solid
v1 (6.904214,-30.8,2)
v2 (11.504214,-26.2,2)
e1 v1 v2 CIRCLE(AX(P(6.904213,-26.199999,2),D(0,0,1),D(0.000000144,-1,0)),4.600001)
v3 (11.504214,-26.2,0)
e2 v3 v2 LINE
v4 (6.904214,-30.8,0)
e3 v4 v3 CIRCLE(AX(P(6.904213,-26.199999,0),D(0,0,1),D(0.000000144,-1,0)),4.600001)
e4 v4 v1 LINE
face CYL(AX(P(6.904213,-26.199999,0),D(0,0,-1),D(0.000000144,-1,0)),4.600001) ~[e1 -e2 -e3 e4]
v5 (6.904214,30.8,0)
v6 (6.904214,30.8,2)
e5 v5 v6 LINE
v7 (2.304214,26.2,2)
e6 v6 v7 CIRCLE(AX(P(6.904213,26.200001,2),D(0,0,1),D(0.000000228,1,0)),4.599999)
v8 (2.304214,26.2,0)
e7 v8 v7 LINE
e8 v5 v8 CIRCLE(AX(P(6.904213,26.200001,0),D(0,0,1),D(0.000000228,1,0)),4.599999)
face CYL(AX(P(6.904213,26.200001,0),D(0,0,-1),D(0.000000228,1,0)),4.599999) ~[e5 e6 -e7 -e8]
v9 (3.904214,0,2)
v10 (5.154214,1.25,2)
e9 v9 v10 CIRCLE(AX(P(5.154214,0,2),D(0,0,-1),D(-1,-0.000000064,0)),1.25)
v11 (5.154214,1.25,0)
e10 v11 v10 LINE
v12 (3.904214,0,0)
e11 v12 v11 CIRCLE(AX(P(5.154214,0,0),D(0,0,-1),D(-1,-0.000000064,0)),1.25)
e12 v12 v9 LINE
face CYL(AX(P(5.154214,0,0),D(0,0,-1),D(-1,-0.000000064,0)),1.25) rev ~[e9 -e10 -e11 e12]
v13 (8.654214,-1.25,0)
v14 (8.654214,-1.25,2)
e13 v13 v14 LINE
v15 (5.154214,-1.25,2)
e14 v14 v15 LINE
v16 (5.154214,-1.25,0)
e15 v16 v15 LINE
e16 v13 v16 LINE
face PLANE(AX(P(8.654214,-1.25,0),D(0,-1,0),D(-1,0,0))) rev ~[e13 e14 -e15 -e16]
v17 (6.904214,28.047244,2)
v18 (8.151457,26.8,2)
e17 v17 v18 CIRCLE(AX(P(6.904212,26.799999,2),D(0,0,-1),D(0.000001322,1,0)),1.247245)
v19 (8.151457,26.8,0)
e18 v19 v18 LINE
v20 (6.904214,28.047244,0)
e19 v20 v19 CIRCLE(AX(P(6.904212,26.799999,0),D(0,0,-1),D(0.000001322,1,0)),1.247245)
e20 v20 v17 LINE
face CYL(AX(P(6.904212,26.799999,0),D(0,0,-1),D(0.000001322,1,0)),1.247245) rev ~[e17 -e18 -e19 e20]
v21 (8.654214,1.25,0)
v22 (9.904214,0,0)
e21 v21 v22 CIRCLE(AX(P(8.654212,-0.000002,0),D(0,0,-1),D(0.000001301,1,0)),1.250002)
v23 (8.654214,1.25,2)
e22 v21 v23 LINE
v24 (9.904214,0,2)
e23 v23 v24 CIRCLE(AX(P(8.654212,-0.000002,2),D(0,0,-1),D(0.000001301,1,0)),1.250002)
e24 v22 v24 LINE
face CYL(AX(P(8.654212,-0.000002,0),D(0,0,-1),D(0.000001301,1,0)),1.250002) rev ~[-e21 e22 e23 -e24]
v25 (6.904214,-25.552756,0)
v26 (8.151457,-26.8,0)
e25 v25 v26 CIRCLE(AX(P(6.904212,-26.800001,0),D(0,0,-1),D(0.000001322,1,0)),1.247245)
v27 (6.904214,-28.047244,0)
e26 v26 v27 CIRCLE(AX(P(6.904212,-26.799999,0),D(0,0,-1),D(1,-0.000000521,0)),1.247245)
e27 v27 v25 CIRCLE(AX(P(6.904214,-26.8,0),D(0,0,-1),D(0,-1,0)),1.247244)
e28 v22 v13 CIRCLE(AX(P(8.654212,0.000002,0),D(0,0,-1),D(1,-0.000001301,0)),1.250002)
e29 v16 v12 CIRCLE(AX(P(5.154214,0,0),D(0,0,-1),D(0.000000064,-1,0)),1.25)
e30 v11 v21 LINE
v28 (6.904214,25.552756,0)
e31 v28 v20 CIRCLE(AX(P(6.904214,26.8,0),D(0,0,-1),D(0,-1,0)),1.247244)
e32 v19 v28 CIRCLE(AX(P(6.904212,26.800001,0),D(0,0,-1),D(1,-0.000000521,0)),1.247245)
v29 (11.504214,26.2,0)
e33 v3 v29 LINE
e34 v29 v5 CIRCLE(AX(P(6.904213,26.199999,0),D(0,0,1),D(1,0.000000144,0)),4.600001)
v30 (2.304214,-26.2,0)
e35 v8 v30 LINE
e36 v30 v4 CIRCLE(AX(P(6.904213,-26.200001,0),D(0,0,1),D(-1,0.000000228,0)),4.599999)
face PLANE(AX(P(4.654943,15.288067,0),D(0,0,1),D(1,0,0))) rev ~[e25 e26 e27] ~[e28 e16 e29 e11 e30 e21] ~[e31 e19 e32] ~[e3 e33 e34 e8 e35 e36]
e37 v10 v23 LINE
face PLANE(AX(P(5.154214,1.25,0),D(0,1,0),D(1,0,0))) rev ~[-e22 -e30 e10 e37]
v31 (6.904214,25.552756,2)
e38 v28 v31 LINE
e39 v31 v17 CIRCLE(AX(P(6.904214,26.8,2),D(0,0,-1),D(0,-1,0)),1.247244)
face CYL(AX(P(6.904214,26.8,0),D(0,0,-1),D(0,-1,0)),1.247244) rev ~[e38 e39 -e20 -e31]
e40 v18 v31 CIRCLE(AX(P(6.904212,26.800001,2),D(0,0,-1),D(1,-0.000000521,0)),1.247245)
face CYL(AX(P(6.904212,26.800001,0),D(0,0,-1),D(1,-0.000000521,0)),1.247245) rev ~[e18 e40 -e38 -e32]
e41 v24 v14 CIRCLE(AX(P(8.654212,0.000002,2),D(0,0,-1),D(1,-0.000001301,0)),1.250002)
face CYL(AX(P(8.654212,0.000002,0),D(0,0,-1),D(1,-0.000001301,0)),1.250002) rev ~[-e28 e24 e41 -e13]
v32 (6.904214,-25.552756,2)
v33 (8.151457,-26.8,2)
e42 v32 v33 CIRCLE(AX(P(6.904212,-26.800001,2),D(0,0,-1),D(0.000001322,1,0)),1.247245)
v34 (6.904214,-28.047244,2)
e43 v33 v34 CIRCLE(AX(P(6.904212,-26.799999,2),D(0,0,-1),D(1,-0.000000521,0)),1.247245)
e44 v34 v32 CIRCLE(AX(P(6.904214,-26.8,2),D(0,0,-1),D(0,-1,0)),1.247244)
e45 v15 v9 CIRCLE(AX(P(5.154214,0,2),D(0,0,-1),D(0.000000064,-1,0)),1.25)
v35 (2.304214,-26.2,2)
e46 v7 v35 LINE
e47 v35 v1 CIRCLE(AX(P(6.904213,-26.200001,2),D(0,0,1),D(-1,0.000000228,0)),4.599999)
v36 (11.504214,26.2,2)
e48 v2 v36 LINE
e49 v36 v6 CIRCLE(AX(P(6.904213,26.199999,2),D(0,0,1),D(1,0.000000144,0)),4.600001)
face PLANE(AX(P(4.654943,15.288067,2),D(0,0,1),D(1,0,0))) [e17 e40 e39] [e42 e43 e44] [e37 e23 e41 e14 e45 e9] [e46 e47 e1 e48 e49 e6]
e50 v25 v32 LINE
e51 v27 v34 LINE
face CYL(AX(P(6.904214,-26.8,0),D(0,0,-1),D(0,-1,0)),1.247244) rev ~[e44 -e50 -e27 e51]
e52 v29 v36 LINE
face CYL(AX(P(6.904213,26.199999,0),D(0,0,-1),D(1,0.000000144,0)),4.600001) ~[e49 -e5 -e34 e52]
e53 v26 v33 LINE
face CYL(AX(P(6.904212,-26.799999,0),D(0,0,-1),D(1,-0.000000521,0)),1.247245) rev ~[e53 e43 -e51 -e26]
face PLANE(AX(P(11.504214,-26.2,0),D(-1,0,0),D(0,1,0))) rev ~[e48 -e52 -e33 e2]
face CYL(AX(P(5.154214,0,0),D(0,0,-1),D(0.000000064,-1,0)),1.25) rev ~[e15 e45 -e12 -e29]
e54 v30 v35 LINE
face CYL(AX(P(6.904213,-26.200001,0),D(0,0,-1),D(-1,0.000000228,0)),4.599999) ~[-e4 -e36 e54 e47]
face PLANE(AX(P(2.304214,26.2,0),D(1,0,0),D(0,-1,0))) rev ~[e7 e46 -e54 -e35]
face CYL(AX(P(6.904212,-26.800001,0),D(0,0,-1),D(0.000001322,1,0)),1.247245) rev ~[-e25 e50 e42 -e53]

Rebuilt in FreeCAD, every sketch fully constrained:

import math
import FreeCAD as App
import Part
import Sketcher

V = App.Vector

doc = App.newDocument("Part")
params = doc.addObject("Spreadsheet::Sheet", "Params")
for row, (alias, value) in enumerate([
    ("sketch1_radius", "4.599999 mm"),
    ("sketch1_radius2", "1.25 mm"),
    ("sketch1_width", "3.5 mm"),
    ("sketch1_height", "52.4 mm"),
    ("pad1_length", "2 mm"),
], start=1):
    params.set(f"A{row}", alias)
    params.set(f"B{row}", "=" + value)
    params.setAlias(f"B{row}", alias)

body = doc.addObject("PartDesign::Body", "Body")

sketch1 = body.newObject("Sketcher::SketchObject", "Sketch")
sketch1.AttachmentSupport = (doc.getObject("XY_Plane"), [""])
sketch1.MapMode = "FlatFace"
sketch1.addGeometry([
    Part.LineSegment(V(2.304214, 26.2, 0), V(2.304214, -26.2, 0)),
    Part.ArcOfCircle(Part.Circle(V(6.904213, -26.200001, 0), V(0, 0, 1), 4.599999), math.radians(179.999987), math.radians(270.000013)),
    Part.ArcOfCircle(Part.Circle(V(6.904213, -26.199999, 0), V(0, 0, 1), 4.600001), math.radians(-89.999992), math.radians(-0.000008)),
    Part.LineSegment(V(11.504214, -26.2, 0), V(11.504214, 26.2, 0)),
    Part.ArcOfCircle(Part.Circle(V(6.904213, 26.199999, 0), V(0, 0, 1), 4.600001), math.radians(0.000008), math.radians(89.999992)),
    Part.ArcOfCircle(Part.Circle(V(6.904213, 26.200001, 0), V(0, 0, 1), 4.599999), math.radians(89.999987), math.radians(180.000013)),
    Part.ArcOfCircle(Part.Circle(V(6.904214, -26.8, 0), V(0, 0, 1), 1.247244), math.radians(90), math.radians(270)),
    Part.ArcOfCircle(Part.Circle(V(6.904212, -26.800001, 0), V(0, 0, 1), 1.247245), math.radians(0.00003), math.radians(89.999924)),
    Part.ArcOfCircle(Part.Circle(V(6.904212, -26.799999, 0), V(0, 0, 1), 1.247245), math.radians(-89.999924), math.radians(-0.00003)),
    Part.ArcOfCircle(Part.Circle(V(5.154214, 0, 0), V(0, 0, 1), 1.25), math.radians(179.999996), math.radians(270.000004)),
    Part.ArcOfCircle(Part.Circle(V(5.154214, 0, 0), V(0, 0, 1), 1.25), math.radians(89.999996), math.radians(180.000004)),
    Part.LineSegment(V(5.154214, 1.25, 0), V(8.654214, 1.25, 0)),
    Part.ArcOfCircle(Part.Circle(V(8.654212, -0.000002, 0), V(0, 0, 1), 1.250002), math.radians(0.000075), math.radians(89.999925)),
    Part.ArcOfCircle(Part.Circle(V(8.654212, 0.000002, 0), V(0, 0, 1), 1.250002), math.radians(-89.999925), math.radians(-0.000075)),
    Part.LineSegment(V(8.654214, -1.25, 0), V(5.154214, -1.25, 0)),
    Part.ArcOfCircle(Part.Circle(V(6.904214, 26.8, 0), V(0, 0, 1), 1.247244), math.radians(90), math.radians(270)),
    Part.ArcOfCircle(Part.Circle(V(6.904212, 26.799999, 0), V(0, 0, 1), 1.247245), math.radians(0.00003), math.radians(89.999924)),
    Part.ArcOfCircle(Part.Circle(V(6.904212, 26.800001, 0), V(0, 0, 1), 1.247245), math.radians(-89.999924), math.radians(-0.00003)),
], False)
sketch1.addConstraint([
    Sketcher.Constraint("Tangent", 0, 2, 1, 1),
    Sketcher.Constraint("Tangent", 1, 2, 2, 1),
    Sketcher.Constraint("Tangent", 2, 2, 3, 1),
    Sketcher.Constraint("Tangent", 3, 2, 4, 1),
    Sketcher.Constraint("Tangent", 4, 2, 5, 1),
    Sketcher.Constraint("Tangent", 5, 2, 0, 1),
    Sketcher.Constraint("Tangent", 6, 1, 7, 2),
    Sketcher.Constraint("Tangent", 7, 1, 8, 2),
    Sketcher.Constraint("Tangent", 8, 1, 6, 2),
    Sketcher.Constraint("Tangent", 9, 1, 10, 2),
    Sketcher.Constraint("Tangent", 10, 1, 11, 1),
    Sketcher.Constraint("Tangent", 11, 2, 12, 2),
    Sketcher.Constraint("Coincident", 12, 1, 13, 2),
    Sketcher.Constraint("Tangent", 13, 1, 14, 1),
    Sketcher.Constraint("Tangent", 14, 2, 9, 2),
    Sketcher.Constraint("Tangent", 15, 1, 16, 2),
    Sketcher.Constraint("Tangent", 16, 1, 17, 2),
    Sketcher.Constraint("Tangent", 17, 1, 15, 2),
    Sketcher.Constraint("Vertical", 0),
    Sketcher.Constraint("Vertical", 3),
    Sketcher.Constraint("Horizontal", 11),
    Sketcher.Constraint("Horizontal", 14),
    Sketcher.Constraint("Coincident", 13, 3, 12, 3),
    Sketcher.Constraint("Equal", 1, 2),
    Sketcher.Constraint("Equal", 2, 4),
    Sketcher.Constraint("Equal", 9, 10),
    Sketcher.Constraint("Equal", 8, 15),
    Sketcher.Constraint("Symmetric", 6, 3, 15, 3, -1),
    Sketcher.Constraint("Symmetric", 1, 2, 4, 2, -1),
    Sketcher.Constraint("PointOnObject", 9, 3, -1),
    Sketcher.Constraint("PointOnObject", 9, 1, -1),
    Sketcher.Constraint("PointOnObject", 12, 1, -1),
    Sketcher.Constraint("Horizontal", 8, 3, 7, 1),
    Sketcher.Constraint("Horizontal", 17, 3, 16, 1),
    Sketcher.Constraint("Vertical", 5, 3, 6, 3),
    Sketcher.Constraint("Vertical", 17, 3, 1, 2),
    Sketcher.Constraint("Vertical", 4, 2, 6, 1),
    Sketcher.Constraint("Vertical", 6, 1, 8, 1),
    Sketcher.Constraint("Vertical", 8, 1, 15, 1),
    Sketcher.Constraint("Vertical", 15, 1, 17, 1),
    Sketcher.Constraint("Radius", 1, 4.599999),
    Sketcher.Constraint("Radius", 9, 1.25),
    Sketcher.Constraint("DistanceX", 11, 1, 11, 2, 3.5),
    Sketcher.Constraint("DistanceY", 0, 2, 0, 1, 52.4),
    Sketcher.Constraint("DistanceY", 6, 3, 4, 3, 52.999999),
    Sketcher.Constraint("DistanceX", 9, 1, 6, 1, 3.0),
    Sketcher.Constraint("Radius", 6, 1.247244),
    Sketcher.Constraint("DistanceX", -1, 1, 1, 3, 6.904213),
])
sketch1.setExpression("Constraints[40]", "Params.sketch1_radius")
sketch1.setExpression("Constraints[41]", "Params.sketch1_radius2")
sketch1.setExpression("Constraints[42]", "Params.sketch1_width")
sketch1.setExpression("Constraints[43]", "Params.sketch1_height")
pad1 = body.newObject("PartDesign::Pad", "Pad")
pad1.Profile = sketch1
pad1.setExpression("Length", "Params.pad1_length")

doc.recompute()
